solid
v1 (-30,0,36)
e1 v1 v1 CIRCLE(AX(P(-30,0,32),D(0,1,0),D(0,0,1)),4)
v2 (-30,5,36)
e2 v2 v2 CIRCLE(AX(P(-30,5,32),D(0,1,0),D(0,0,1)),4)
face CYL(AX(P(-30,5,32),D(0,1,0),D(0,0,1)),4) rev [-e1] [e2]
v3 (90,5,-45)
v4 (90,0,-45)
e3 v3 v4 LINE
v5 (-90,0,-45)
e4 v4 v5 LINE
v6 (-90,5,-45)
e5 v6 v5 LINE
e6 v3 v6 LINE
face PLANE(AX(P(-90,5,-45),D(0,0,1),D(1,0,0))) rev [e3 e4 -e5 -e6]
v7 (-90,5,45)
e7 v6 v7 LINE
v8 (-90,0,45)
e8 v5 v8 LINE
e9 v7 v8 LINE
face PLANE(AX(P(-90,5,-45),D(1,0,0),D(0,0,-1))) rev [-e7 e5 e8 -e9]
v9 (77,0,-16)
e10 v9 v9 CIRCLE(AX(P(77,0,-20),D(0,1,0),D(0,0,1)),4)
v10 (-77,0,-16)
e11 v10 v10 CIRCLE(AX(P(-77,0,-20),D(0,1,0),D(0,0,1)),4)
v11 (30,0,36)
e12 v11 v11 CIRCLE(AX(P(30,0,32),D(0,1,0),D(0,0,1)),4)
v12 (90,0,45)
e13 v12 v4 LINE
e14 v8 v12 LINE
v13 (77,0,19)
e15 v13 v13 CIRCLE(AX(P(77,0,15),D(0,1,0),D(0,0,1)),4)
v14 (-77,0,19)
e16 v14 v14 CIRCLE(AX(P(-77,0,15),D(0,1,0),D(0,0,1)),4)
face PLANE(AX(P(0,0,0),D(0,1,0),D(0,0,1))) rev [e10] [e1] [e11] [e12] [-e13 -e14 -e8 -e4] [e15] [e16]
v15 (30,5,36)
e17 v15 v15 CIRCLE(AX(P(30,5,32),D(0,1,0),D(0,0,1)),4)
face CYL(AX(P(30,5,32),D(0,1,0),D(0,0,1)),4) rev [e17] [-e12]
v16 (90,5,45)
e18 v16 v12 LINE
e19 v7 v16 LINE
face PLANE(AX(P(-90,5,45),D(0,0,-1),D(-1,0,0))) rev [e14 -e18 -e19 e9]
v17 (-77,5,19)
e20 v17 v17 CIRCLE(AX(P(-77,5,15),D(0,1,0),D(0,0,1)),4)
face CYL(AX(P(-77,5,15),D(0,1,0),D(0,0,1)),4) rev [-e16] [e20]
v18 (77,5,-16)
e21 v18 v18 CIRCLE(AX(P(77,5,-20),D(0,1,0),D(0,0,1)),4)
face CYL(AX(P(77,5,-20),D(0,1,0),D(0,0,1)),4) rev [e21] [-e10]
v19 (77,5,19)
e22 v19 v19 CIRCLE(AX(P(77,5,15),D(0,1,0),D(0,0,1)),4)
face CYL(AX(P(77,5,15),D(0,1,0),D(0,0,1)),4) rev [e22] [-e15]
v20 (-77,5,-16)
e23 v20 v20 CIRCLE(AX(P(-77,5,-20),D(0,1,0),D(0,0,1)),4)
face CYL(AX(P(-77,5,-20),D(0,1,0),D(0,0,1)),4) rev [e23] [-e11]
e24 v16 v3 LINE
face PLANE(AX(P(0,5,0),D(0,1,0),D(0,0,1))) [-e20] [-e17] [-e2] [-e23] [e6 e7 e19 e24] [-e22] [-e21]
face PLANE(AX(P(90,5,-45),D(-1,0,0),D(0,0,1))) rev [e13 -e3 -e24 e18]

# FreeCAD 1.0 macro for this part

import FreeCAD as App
import Part
import Sketcher
from FreeCAD import Vector
Q = App.Units.Quantity


def add_polygon(sketch, points):
    """Adds a closed chain of lines whose ends are joined by coincident constraints."""
    first, n = sketch.GeometryCount, len(points)
    for a, b in zip(points, points[1:] + points[:1]):
        sketch.addGeometry(Part.LineSegment(App.Vector(*a, 0), App.Vector(*b, 0)), False)
    for i in range(n):
        sketch.addConstraint(Sketcher.Constraint("Coincident", first + i, 2, first + (i + 1) % n, 1))

doc = App.newDocument("Part")
body = doc.addObject("PartDesign::Body", "Body")

# Sketch on XZ plane
sketch1 = body.newObject("Sketcher::SketchObject", "Sketch")
sketch1.AttachmentSupport = (doc.getObject("XZ_Plane"), [""])
sketch1.MapMode = "FlatFace"
add_polygon(sketch1, [(-90, -45), (-90, 45), (90, 45), (90, -45)])  # lines 0-3
sketch1.addConstraint([
    Sketcher.Constraint("Vertical", 0),
    Sketcher.Constraint("Horizontal", 1),
    Sketcher.Constraint("Vertical", 2),
    Sketcher.Constraint("Horizontal", 3),
    Sketcher.Constraint("Symmetric", 0, 2, 2, 2, -1, 1),
    Sketcher.Constraint("DistanceX", 1, 1, 1, 2, Q("180 mm")),
    Sketcher.Constraint("DistanceY", 0, 1, 0, 2, Q("90 mm")),
])
pad1 = body.newObject("PartDesign::Pad", "Pad")
pad1.Profile = sketch1
pad1.Length = 5
pad1.Reversed = True

# Sketch on XZ plane
sketch2 = body.newObject("Sketcher::SketchObject", "Sketch001")
sketch2.AttachmentSupport = (doc.getObject("XZ_Plane"), [""])
sketch2.MapMode = "FlatFace"
sketch2.AttachmentOffset = App.Placement(Vector(0, 0, -5), App.Rotation())
sketch2.addGeometry([
    Part.Circle(Vector(-77, -20, 0), Vector(0, 0, 1), 4),  # 0
    Part.Circle(Vector(-77, 15, 0), Vector(0, 0, 1), 4),  # 1
    Part.Circle(Vector(-30, 32, 0), Vector(0, 0, 1), 4),  # 2
    Part.Circle(Vector(30, 32, 0), Vector(0, 0, 1), 4),  # 3
    Part.Circle(Vector(77, 15, 0), Vector(0, 0, 1), 4),  # 4
    Part.Circle(Vector(77, -20, 0), Vector(0, 0, 1), 4),  # 5
], False)
sketch2.addConstraint([
    Sketcher.Constraint("Equal", 0, 1),
    Sketcher.Constraint("Equal", 1, 2),
    Sketcher.Constraint("Equal", 2, 3),
    Sketcher.Constraint("Equal", 3, 4),
    Sketcher.Constraint("Equal", 4, 5),
    Sketcher.Constraint("Symmetric", 2, 3, 3, 3, -2),
    Sketcher.Constraint("Symmetric", 1, 3, 4, 3, -2),
    Sketcher.Constraint("Symmetric", 0, 3, 5, 3, -2),
    Sketcher.Constraint("Vertical", 0, 3, 1, 3),
    Sketcher.Constraint("Diameter", 0, Q("8 mm")),
    Sketcher.Constraint("DistanceX", 0, 3, -1, 1, Q("77 mm")),
    Sketcher.Constraint("DistanceY", 0, 3, -1, 1, Q("20 mm")),
    Sketcher.Constraint("DistanceY", -1, 1, 1, 3, Q("15 mm")),
    Sketcher.Constraint("DistanceX", 2, 3, -1, 1, Q("30 mm")),
    Sketcher.Constraint("DistanceY", -1, 1, 2, 3, Q("32 mm")),
])
doc.recompute()
hole = body.newObject("PartDesign::Hole", "Hole")
hole.Profile = sketch2
hole.ThreadType = "None"
hole.Diameter = 8
hole.DepthType = "ThroughAll"
hole.Reversed = True

doc.recompute()
